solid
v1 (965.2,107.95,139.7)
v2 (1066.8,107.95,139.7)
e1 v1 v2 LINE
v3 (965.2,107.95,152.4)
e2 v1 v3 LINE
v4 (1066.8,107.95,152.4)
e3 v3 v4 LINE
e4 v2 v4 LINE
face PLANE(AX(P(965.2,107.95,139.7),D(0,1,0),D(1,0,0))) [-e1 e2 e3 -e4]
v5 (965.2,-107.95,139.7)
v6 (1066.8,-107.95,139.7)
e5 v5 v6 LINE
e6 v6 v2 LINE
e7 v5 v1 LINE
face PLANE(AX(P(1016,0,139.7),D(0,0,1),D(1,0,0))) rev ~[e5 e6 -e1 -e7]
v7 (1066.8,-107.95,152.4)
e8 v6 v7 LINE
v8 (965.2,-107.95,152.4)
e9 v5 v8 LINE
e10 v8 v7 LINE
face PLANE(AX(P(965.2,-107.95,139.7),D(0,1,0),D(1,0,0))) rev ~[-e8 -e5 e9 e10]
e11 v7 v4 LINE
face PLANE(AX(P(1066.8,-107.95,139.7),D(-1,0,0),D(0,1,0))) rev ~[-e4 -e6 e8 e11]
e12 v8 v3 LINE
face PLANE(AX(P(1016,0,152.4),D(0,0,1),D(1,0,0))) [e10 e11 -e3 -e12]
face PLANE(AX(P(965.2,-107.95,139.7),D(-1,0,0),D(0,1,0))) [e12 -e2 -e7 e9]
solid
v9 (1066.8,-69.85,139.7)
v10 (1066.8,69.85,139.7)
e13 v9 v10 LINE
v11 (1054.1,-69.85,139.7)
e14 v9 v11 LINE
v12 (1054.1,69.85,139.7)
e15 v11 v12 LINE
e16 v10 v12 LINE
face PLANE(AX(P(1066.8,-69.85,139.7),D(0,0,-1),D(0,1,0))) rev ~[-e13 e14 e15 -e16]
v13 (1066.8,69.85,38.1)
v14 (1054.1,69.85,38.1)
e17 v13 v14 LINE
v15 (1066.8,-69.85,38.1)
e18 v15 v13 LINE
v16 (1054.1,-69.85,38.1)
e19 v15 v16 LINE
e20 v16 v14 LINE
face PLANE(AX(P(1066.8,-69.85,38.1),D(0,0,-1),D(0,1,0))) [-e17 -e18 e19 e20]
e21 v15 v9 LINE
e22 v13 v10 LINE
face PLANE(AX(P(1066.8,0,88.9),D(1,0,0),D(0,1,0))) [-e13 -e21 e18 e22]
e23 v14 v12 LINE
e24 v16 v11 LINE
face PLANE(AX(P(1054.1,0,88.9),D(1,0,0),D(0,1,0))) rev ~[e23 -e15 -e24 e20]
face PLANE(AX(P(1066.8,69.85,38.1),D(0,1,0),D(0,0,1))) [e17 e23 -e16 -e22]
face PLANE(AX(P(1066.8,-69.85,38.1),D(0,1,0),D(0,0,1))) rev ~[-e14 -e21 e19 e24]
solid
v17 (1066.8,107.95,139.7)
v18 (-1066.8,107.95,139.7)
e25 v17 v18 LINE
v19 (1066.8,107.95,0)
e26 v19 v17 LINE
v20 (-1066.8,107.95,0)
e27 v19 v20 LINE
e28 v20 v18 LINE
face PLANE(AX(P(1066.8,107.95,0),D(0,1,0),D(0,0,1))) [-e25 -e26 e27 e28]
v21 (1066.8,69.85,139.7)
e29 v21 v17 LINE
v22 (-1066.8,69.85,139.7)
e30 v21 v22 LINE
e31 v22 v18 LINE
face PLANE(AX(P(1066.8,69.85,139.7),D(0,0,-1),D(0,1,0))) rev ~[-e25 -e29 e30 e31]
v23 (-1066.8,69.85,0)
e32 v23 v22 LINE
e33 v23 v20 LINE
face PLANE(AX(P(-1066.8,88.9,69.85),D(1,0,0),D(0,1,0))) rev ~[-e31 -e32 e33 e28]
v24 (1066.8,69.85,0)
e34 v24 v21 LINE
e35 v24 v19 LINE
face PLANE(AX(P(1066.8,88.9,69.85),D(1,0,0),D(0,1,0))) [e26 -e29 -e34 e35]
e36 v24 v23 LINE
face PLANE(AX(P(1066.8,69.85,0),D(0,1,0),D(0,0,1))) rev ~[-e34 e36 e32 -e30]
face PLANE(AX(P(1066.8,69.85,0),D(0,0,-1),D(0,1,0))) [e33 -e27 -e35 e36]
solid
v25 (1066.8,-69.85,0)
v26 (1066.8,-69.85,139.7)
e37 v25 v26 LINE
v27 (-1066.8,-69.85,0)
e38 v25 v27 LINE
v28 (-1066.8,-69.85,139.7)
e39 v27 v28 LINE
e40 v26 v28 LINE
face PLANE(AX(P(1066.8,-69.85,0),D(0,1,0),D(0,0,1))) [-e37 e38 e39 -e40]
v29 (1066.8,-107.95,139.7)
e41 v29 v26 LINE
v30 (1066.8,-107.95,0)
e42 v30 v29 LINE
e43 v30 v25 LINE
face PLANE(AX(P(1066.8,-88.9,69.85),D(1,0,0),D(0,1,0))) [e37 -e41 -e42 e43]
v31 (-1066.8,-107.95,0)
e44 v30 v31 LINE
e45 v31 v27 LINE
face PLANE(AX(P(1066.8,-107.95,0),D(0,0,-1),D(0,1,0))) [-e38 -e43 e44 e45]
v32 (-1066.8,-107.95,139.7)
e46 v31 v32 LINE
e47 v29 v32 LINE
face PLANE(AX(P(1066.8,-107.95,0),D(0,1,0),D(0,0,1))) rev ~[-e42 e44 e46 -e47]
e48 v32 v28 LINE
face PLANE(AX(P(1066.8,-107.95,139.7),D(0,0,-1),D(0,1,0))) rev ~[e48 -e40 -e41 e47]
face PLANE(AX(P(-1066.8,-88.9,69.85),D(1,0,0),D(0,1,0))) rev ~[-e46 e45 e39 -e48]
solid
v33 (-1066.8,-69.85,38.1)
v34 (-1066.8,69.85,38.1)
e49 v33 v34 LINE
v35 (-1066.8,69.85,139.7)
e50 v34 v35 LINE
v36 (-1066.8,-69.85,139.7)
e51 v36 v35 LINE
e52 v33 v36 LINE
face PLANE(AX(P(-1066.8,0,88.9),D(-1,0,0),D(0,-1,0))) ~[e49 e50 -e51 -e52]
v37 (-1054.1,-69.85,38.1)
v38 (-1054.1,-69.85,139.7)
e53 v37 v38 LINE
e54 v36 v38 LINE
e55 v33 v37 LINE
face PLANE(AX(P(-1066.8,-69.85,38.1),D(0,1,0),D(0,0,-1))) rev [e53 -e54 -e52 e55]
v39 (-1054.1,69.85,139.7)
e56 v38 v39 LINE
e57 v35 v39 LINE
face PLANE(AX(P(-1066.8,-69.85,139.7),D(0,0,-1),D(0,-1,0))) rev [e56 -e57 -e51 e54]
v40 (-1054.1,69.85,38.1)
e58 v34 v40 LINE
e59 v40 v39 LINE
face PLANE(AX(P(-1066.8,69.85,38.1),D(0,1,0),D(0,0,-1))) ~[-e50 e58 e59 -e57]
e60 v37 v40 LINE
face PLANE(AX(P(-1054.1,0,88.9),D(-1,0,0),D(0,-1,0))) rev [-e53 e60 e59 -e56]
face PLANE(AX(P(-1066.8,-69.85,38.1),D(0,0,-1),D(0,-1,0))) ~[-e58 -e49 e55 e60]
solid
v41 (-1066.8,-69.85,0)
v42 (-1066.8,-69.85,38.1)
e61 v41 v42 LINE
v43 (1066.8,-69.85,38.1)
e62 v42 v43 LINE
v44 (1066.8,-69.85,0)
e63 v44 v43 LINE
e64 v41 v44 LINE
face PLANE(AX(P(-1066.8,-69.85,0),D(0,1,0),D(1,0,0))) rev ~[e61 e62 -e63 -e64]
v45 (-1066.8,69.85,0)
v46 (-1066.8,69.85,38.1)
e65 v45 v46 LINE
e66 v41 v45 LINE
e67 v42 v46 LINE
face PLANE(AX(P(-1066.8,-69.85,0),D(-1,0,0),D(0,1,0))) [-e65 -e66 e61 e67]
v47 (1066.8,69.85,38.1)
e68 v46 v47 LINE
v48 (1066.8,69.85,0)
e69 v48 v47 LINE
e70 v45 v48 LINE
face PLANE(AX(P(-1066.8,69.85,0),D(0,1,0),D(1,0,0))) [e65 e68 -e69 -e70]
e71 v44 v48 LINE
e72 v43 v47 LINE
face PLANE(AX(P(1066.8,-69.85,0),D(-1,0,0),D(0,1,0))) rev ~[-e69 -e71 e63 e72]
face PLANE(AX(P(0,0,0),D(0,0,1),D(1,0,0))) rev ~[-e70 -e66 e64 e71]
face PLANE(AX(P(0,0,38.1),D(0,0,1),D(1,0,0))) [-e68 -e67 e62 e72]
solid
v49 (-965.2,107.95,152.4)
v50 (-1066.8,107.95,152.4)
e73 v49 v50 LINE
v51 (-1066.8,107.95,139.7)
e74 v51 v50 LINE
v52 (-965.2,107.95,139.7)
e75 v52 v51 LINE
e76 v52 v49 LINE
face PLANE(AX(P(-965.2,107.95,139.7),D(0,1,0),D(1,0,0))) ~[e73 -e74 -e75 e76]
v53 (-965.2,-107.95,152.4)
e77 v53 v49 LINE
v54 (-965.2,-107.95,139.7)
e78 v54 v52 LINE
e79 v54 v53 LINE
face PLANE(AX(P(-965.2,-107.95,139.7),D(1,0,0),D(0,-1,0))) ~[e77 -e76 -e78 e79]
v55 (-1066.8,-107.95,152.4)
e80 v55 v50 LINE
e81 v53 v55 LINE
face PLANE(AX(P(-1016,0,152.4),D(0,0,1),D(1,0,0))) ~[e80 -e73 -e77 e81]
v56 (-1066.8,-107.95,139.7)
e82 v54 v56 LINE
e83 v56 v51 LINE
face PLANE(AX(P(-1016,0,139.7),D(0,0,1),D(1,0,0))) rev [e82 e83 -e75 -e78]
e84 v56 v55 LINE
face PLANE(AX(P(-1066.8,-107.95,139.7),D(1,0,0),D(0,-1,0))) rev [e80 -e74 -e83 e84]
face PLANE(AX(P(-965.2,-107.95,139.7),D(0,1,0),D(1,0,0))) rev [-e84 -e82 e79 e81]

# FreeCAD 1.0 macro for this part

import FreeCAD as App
import Part
import Sketcher
from FreeCAD import Vector
Q = App.Units.Quantity


def add_polygon(sketch, points):
    """Adds a closed chain of lines whose ends are joined by coincident constraints."""
    first, n = sketch.GeometryCount, len(points)
    for a, b in zip(points, points[1:] + points[:1]):
        sketch.addGeometry(Part.LineSegment(App.Vector(*a, 0), App.Vector(*b, 0)), False)
    for i in range(n):
        sketch.addConstraint(Sketcher.Constraint("Coincident", first + i, 2, first + (i + 1) % n, 1))

doc = App.newDocument("Part")
body = doc.addObject("PartDesign::Body", "Body")

sketch1 = body.newObject("Sketcher::SketchObject", "Sketch")
sketch1.AttachmentSupport = (doc.getObject("XY_Plane"), [""])
sketch1.MapMode = "FlatFace"
add_polygon(sketch1, [(-1067, 70), (-1067, -70), (1067, -70), (1067, 70)])
sketch1.addConstraint([
    Sketcher.Constraint("Vertical", 0),
    Sketcher.Constraint("Horizontal", 1),
    Sketcher.Constraint("Vertical", 2),
    Sketcher.Constraint("Horizontal", 3),
    Sketcher.Constraint("Symmetric", 0, 2, 2, 2, -1, 1),
    Sketcher.Constraint("DistanceX", 1, 1, 1, 2, Q("84 in")),
    Sketcher.Constraint("DistanceY", 0, 2, 0, 1, Q("5.5 in")),
])
pad1 = body.newObject("PartDesign::Pad", "Pad")
pad1.Profile = sketch1
pad1.Length = Q("1.5 in")
body2 = doc.addObject("PartDesign::Body", "Body001")
body2.AllowCompound = True

sketch2 = body2.newObject("Sketcher::SketchObject", "Sketch001")
sketch2.AttachmentSupport = (doc.getObject("YZ_Plane001"), [""])
sketch2.MapMode = "FlatFace"
sketch2.AttachmentOffset = App.Placement(Vector(0, 0, 42 * 25.4), App.Rotation())
add_polygon(sketch2, [(70, 140), (70, 0), (108, 0), (108, 140)])
add_polygon(sketch2, [(-108, 140), (-108, 0), (-70, 0), (-70, 140)])
sketch2.addConstraint([
    Sketcher.Constraint("Vertical", 0),
    Sketcher.Constraint("Horizontal", 1),
    Sketcher.Constraint("Vertical", 2),
    Sketcher.Constraint("Horizontal", 3),
    Sketcher.Constraint("Vertical", 4),
    Sketcher.Constraint("Horizontal", 5),
    Sketcher.Constraint("Vertical", 6),
    Sketcher.Constraint("Horizontal", 7),
    Sketcher.Constraint("Symmetric", 1, 2, 4, 2, -1, 1),
    Sketcher.Constraint("Symmetric", 0, 2, 5, 2, -2),
    Sketcher.Constraint("Horizontal", 3, 2, 6, 2),
    Sketcher.Constraint("DistanceX", 1, 1, 1, 2, Q("1.5 in")),
    Sketcher.Constraint("DistanceY", 0, 2, 0, 1, Q("5.5 in")),
    Sketcher.Constraint("DistanceX", 4, 2, 0, 2, Q("7 in")),
])
pad2 = body2.newObject("PartDesign::Pad", "Pad001")
pad2.Profile = sketch2
pad2.Length = Q("84 in")
pad2.Reversed = True
body3 = doc.addObject("PartDesign::Body", "Body002")

sketch3 = body3.newObject("Sketcher::SketchObject", "Sketch002")
sketch3.AttachmentSupport = (doc.getObject("YZ_Plane002"), [""])
sketch3.MapMode = "FlatFace"
sketch3.AttachmentOffset = App.Placement(Vector(0, 0, 42 * 25.4), App.Rotation())
add_polygon(sketch3, [(-70, 140), (-70, 38), (70, 38), (70, 140)])
sketch3.addConstraint([
    Sketcher.Constraint("Vertical", 0),
    Sketcher.Constraint("Horizontal", 1),
    Sketcher.Constraint("Vertical", 2),
    Sketcher.Constraint("Horizontal", 3),
    Sketcher.Constraint("DistanceY", 0, 2, 0, 1, Q("4 in")),
    Sketcher.Constraint("DistanceX", 1, 1, 1, 2, Q("5.5 in")),
    Sketcher.Constraint("DistanceY", -1, 1, 0, 2, Q("1.5 in")),
    Sketcher.Constraint("DistanceX", 0, 2, -1, 1, Q("2.75 in")),
])
pad3 = body3.newObject("PartDesign::Pad", "Pad002")
pad3.Profile = sketch3
pad3.Length = Q("0.5 in")
pad3.Reversed = True
body4 = doc.addObject("PartDesign::Body", "Body003")

sketch4 = body4.newObject("Sketcher::SketchObject", "Sketch003")
sketch4.AttachmentSupport = (doc.getObject("XY_Plane003"), [""])
sketch4.MapMode = "FlatFace"
sketch4.AttachmentOffset = App.Placement(Vector(0, 0, 5.5 * 25.4), App.Rotation())
add_polygon(sketch4, [(965, 108), (965, -108), (1067, -108), (1067, 108)])
sketch4.addConstraint([
    Sketcher.Constraint("Vertical", 0),
    Sketcher.Constraint("Horizontal", 1),
    Sketcher.Constraint("Vertical", 2),
    Sketcher.Constraint("Horizontal", 3),
    Sketcher.Constraint("DistanceX", 1, 1, 1, 2, Q("4 in")),
    Sketcher.Constraint("DistanceY", 0, 2, 0, 1, Q("8.5 in")),
    Sketcher.Constraint("DistanceX", -1, 1, 0, 2, Q("38 in")),
    Sketcher.Constraint("DistanceY", 0, 2, -1, 1, Q("4.25 in")),
])
pad4 = body4.newObject("PartDesign::Pad", "Pad003")
pad4.Profile = sketch4
pad4.Length = Q("0.5 in")
body5 = doc.addObject("PartDesign::Body", "Body004")
doc.recompute()

mirroring = doc.addObject("Part::Mirroring", "Mirroring")
mirroring.Source = body4
mirroring.Base = Vector(0, 0, 0)
mirroring.Normal = Vector(1, 0, 0)
body5.BaseFeature = mirroring
doc.recompute()
body6 = doc.addObject("PartDesign::Body", "Body005")
doc.recompute()

mirroring2 = doc.addObject("Part::Mirroring", "Mirroring001")
mirroring2.Source = body3
mirroring2.Base = Vector(0, 0, 0)
mirroring2.Normal = Vector(1, 0, 0)
body6.BaseFeature = mirroring2
doc.recompute()
mirroring.Visibility = False
mirroring2.Visibility = False

doc.recompute()
